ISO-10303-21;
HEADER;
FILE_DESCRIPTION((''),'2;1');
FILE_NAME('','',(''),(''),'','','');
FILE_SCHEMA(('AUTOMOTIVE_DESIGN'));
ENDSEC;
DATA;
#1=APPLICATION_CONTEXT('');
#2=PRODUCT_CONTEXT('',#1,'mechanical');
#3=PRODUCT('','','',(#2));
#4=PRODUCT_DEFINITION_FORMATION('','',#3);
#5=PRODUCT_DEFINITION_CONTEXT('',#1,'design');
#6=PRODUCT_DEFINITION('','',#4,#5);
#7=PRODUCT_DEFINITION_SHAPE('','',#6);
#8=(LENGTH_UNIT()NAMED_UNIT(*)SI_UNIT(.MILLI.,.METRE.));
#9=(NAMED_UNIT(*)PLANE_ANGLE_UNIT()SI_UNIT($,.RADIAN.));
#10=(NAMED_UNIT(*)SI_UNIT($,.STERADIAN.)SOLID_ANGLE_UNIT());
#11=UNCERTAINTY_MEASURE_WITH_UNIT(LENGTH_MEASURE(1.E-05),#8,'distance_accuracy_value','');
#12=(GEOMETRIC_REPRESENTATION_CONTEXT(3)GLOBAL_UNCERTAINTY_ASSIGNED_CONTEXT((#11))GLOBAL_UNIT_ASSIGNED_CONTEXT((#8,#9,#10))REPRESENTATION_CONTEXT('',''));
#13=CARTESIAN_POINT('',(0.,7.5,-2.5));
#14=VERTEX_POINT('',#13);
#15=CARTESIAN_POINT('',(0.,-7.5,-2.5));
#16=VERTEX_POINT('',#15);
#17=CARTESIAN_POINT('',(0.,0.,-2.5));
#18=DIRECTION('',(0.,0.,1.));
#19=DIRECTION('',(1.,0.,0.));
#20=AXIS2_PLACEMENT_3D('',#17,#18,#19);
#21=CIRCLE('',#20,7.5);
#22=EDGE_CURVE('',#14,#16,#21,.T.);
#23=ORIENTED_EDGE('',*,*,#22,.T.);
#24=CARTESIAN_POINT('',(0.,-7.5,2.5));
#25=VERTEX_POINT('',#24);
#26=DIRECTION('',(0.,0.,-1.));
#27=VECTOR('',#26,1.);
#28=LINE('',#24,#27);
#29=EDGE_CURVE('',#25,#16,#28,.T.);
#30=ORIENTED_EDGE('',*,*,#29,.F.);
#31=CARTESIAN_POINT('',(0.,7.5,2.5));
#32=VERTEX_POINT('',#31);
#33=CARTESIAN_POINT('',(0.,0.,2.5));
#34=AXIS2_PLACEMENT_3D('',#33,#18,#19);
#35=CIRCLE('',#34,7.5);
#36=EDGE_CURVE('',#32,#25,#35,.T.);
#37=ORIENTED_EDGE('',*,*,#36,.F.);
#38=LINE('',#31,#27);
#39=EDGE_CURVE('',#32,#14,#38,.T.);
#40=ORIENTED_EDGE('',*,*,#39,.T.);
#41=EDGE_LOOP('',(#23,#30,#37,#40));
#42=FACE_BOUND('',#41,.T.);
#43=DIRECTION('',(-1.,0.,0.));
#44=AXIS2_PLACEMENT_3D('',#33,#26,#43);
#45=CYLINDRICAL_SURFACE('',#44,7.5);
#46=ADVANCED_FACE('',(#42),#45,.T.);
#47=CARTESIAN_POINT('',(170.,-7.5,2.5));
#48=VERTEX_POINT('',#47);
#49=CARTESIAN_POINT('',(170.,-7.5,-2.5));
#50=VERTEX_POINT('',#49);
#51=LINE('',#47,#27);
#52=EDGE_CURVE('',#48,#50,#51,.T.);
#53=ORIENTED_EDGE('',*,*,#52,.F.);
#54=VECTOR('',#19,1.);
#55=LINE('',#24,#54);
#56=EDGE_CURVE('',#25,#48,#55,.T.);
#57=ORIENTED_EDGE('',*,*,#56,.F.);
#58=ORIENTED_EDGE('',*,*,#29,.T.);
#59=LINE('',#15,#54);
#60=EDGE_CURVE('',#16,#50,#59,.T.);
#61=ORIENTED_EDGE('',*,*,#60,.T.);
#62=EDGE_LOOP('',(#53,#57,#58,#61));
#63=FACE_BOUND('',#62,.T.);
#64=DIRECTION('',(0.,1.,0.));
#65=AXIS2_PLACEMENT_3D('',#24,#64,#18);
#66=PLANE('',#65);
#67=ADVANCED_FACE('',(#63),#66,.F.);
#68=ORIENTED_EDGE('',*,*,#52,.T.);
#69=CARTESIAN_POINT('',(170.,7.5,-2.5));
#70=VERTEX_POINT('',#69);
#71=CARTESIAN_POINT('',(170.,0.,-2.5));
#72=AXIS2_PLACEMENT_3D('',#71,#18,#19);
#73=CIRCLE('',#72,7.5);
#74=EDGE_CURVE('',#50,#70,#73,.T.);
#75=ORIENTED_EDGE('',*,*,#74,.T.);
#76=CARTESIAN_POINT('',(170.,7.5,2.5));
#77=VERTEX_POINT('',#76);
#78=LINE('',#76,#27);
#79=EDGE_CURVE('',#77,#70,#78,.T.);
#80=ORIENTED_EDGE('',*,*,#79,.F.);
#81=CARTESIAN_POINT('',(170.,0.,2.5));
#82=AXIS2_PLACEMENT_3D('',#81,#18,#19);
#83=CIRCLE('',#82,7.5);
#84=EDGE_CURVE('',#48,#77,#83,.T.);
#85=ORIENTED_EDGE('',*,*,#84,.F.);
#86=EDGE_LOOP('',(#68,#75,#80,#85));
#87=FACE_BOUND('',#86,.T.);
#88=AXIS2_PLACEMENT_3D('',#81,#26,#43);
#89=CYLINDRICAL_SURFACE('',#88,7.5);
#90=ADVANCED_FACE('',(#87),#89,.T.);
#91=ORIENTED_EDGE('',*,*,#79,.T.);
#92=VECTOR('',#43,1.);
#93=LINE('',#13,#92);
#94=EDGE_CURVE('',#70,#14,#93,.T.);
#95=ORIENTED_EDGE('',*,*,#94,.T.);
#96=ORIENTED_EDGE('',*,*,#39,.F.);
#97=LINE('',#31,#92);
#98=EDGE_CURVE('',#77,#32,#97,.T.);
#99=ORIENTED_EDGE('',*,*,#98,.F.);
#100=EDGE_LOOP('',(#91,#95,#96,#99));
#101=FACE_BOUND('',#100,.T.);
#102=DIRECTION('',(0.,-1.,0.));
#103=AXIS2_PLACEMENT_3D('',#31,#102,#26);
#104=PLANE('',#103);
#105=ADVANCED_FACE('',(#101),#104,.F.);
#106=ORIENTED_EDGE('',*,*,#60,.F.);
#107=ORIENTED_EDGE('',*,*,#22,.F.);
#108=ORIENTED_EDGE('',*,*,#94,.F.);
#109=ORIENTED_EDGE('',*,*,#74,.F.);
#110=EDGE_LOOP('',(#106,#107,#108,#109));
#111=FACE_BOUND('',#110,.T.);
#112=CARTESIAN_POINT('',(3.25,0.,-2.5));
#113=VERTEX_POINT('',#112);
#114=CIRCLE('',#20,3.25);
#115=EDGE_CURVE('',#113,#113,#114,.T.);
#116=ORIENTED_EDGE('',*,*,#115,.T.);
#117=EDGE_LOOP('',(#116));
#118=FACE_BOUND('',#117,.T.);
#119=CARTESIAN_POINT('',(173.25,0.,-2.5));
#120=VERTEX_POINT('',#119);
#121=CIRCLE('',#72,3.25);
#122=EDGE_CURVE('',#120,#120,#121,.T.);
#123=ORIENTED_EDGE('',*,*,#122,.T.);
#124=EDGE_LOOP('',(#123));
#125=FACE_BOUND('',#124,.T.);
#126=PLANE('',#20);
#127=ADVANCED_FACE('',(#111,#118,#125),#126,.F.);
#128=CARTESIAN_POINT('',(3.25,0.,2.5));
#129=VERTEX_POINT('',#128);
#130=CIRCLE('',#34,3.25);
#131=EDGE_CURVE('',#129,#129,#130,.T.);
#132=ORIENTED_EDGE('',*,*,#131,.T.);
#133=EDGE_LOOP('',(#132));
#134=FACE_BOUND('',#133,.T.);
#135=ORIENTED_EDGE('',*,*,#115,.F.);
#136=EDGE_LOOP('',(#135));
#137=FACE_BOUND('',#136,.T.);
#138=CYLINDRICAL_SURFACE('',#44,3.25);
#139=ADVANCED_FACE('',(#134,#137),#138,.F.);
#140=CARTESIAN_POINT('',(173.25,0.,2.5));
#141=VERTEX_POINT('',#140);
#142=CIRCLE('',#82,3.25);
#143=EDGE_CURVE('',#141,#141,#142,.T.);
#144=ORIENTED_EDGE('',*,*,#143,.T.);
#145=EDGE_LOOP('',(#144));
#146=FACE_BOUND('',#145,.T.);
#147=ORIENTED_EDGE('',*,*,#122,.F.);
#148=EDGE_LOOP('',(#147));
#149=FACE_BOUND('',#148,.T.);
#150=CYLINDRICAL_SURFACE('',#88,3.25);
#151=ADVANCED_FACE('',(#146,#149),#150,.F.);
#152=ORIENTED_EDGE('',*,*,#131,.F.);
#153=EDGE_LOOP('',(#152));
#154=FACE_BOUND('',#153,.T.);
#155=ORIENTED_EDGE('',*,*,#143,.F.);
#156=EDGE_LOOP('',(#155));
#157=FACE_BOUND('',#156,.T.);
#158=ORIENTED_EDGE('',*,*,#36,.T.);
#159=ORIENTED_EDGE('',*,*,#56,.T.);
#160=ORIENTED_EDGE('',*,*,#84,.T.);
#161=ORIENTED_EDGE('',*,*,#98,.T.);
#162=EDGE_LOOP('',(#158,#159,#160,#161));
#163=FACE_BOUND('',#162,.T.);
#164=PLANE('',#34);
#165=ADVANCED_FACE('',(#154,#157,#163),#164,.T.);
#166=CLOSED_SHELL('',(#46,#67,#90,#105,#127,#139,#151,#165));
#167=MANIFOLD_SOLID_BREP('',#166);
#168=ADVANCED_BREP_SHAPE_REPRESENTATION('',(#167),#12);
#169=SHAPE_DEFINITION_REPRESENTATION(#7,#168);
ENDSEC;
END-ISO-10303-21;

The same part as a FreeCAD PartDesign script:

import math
import FreeCAD as App
import Part
import Sketcher

doc = App.newDocument("Part")
body = doc.addObject("PartDesign::Body", "Body")

sketch1 = body.newObject("Sketcher::SketchObject", "Sketch")
sketch1.AttachmentSupport = (doc.getObject("XY_Plane"), [""])
sketch1.MapMode = "FlatFace"
sketch1.addGeometry([
    Part.LineSegment(App.Vector(170, 7.5, 0), App.Vector(0, 7.5, 0)),
    Part.ArcOfCircle(Part.Circle(App.Vector(0, 0, 0), App.Vector(0, 0, 1), 7.5), math.radians(90), math.radians(270)),
    Part.LineSegment(App.Vector(0, -7.5, 0), App.Vector(170, -7.5, 0)),
    Part.ArcOfCircle(Part.Circle(App.Vector(170, 0, 0), App.Vector(0, 0, 1), 7.5), math.radians(-90), math.radians(90)),
    Part.Circle(App.Vector(170, 0, 0), App.Vector(0, 0, 1), 3.2),
    Part.Circle(App.Vector(0, 0, 0), App.Vector(0, 0, 1), 3.2),
], False)
sketch1.addConstraint([
    Sketcher.Constraint("Tangent", 0, 2, 1, 1),
    Sketcher.Constraint("Tangent", 1, 2, 2, 1),
    Sketcher.Constraint("Tangent", 2, 2, 3, 1),
    Sketcher.Constraint("Tangent", 3, 2, 0, 1),
    Sketcher.Constraint("Horizontal", 0),
    Sketcher.Constraint("Horizontal", 2),
    Sketcher.Constraint("Coincident", 1, 3, -1, 1),
    Sketcher.Constraint("Coincident", 5, 3, -1, 1),
    Sketcher.Constraint("Coincident", 4, 3, 3, 3),
    Sketcher.Constraint("Equal", 4, 5),
    Sketcher.Constraint("Diameter", 4, 6.5),
    Sketcher.Constraint("Radius", 1, 7.5),
    Sketcher.Constraint("DistanceX", 0, 2, 0, 1, 170.0),
])
pad1 = body.newObject("PartDesign::Pad", "Pad")
pad1.Profile = sketch1
pad1.Length = 5
pad1.Midplane = True

doc.recompute()
